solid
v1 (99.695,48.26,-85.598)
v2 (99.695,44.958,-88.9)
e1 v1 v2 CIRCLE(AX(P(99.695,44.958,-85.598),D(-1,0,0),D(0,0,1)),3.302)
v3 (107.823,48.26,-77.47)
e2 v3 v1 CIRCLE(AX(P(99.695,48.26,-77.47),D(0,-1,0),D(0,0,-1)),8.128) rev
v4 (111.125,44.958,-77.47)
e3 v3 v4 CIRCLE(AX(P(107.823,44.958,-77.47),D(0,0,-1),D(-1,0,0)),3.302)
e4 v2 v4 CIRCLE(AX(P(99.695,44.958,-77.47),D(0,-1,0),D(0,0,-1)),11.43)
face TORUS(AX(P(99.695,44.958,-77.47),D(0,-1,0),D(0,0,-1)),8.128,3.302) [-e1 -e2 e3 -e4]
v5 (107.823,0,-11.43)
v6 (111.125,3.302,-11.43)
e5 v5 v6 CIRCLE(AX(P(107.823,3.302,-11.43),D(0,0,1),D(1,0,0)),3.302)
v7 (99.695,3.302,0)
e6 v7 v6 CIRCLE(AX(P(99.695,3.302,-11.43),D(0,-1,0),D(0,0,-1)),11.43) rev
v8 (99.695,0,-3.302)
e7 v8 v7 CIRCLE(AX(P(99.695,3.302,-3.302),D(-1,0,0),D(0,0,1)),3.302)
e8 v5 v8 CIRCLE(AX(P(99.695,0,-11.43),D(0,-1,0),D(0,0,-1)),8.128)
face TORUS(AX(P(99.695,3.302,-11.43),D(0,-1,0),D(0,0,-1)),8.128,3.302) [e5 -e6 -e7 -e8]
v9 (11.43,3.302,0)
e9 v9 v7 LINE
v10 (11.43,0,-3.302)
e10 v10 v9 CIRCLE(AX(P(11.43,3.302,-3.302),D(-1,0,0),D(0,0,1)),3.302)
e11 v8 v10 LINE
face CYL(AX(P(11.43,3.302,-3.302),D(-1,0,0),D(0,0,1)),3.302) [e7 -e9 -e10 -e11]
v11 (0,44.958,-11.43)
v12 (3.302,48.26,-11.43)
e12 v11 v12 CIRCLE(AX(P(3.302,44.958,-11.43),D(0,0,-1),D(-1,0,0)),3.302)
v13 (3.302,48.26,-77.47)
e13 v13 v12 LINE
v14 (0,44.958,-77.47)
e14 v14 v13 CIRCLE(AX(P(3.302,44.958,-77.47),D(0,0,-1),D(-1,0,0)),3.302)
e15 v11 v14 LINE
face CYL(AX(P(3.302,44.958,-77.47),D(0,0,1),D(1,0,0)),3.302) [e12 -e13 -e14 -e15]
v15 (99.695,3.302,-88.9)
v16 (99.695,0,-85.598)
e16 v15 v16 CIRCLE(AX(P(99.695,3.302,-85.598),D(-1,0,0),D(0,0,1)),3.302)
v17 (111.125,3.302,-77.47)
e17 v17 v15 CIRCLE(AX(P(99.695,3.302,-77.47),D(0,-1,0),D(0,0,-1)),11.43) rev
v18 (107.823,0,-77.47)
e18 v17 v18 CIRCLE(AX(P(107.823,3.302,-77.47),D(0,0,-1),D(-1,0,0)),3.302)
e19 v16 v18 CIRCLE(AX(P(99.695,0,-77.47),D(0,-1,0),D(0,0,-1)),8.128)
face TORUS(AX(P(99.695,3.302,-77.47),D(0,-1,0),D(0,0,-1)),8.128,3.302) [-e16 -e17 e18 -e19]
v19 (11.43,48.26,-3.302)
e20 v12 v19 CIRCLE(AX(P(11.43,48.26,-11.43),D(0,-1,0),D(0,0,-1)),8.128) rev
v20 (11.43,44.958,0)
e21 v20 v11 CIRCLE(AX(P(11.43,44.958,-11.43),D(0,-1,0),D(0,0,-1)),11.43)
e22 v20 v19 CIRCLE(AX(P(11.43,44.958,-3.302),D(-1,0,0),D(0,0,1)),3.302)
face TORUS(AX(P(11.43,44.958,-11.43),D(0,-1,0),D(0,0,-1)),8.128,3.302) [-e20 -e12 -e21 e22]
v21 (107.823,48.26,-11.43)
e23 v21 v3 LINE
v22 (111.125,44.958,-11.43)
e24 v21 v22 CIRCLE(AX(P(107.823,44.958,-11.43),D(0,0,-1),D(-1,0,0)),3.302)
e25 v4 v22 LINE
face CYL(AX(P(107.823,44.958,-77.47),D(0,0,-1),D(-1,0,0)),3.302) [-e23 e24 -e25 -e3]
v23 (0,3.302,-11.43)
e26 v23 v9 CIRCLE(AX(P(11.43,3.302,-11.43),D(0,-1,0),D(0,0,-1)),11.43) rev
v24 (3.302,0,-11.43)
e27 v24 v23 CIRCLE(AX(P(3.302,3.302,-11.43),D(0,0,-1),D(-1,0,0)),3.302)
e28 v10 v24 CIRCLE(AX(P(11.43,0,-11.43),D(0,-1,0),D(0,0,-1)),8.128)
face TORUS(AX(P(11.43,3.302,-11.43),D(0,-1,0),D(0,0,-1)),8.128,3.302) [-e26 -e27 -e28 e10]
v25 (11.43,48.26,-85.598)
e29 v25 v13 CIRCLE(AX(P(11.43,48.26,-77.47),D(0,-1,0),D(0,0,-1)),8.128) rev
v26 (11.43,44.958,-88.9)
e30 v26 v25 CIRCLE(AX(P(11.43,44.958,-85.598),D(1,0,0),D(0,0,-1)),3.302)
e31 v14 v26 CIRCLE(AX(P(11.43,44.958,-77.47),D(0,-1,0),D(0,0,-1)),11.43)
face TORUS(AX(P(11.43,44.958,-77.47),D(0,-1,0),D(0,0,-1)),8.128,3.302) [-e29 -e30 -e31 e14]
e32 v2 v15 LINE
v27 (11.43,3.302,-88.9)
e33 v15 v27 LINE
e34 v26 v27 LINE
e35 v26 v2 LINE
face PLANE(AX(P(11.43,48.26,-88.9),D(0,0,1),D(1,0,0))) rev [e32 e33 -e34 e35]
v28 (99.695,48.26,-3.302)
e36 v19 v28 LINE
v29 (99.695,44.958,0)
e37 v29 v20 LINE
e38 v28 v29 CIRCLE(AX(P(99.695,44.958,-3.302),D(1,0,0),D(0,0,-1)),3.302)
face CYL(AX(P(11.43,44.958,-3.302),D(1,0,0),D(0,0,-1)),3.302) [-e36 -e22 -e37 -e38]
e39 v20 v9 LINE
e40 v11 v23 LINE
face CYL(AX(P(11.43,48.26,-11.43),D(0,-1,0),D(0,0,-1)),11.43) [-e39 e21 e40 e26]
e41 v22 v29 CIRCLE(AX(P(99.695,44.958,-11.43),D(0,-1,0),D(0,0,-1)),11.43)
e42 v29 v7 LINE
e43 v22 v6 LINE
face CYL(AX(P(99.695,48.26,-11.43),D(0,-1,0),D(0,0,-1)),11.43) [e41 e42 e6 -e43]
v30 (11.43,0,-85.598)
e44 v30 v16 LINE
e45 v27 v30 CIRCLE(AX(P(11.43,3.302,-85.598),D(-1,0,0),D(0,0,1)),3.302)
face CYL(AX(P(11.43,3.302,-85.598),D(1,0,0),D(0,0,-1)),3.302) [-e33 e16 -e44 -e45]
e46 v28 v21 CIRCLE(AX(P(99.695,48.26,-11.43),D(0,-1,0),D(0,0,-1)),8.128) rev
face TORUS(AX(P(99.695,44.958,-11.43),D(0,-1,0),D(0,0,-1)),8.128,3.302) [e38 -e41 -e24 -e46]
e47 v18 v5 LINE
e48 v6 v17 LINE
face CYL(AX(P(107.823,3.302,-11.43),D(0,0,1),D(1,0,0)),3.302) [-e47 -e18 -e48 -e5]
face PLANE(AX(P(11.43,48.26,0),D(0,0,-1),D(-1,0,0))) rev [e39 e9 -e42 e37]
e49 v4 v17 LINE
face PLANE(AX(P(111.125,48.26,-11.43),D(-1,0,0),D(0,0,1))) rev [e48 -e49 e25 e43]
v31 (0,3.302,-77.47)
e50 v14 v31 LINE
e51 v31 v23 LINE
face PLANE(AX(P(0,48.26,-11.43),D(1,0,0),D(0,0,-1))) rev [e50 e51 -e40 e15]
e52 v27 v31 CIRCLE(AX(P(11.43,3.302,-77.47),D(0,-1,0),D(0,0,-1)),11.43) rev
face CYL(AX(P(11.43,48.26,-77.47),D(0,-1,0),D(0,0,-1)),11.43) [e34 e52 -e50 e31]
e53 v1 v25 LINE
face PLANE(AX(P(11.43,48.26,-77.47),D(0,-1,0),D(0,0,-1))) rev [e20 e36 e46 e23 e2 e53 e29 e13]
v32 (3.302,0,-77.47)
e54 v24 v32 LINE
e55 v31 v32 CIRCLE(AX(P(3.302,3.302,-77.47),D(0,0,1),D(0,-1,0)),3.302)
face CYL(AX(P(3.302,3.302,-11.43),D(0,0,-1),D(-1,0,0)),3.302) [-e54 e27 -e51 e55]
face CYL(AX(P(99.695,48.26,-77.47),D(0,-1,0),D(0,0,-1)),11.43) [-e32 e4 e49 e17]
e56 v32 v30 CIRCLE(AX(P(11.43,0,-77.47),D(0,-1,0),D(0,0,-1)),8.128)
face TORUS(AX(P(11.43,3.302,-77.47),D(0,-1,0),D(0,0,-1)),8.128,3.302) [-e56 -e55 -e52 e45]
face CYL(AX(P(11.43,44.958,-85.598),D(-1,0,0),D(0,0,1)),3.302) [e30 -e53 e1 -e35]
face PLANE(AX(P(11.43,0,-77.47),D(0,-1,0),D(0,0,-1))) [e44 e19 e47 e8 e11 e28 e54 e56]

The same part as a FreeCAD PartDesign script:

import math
import FreeCAD as App
import Part
import Sketcher
Q = App.Units.Quantity


def edges_at(feature, points):
    """Names of the edges that pass closest to the given points."""
    edges = feature.Shape.Edges
    near = lambda p: min(range(len(edges)), key=lambda i: edges[i].distToShape(Part.Vertex(*p))[0])
    return sorted({f"Edge{near(p) + 1}" for p in points})

doc = App.newDocument("Part")
params = doc.addObject("Spreadsheet::Sheet", "Params")
for row, (alias, value) in enumerate([
    ("sketch1_radius", "0.45 in"),
    ("sketch1_height", "2.6 in"),
    ("sketch1_width", "3.475 in"),
    ("pad1_length", "1.9 in"),
    ("fillet_radius", "0.13 in"),
], start=1):
    params.set(f"A{row}", alias)
    params.set(f"B{row}", "=" + value)
    params.setAlias(f"B{row}", alias)

body = doc.addObject("PartDesign::Body", "Body")

# Sketch on XZ plane
sketch1 = body.newObject("Sketcher::SketchObject", "Sketch")
sketch1.AttachmentSupport = (doc.getObject("XZ_Plane"), [""])
sketch1.MapMode = "FlatFace"
sketch1.addGeometry([
    Part.LineSegment(App.Vector(11.43, 0, 0), App.Vector(99.695, 0, 0)),  # 0
    Part.ArcOfCircle(Part.Circle(App.Vector(99.695, -11.43, 0), App.Vector(0, 0, 1), 11.43), math.radians(0), math.radians(90)),  # 1
    Part.LineSegment(App.Vector(111.125, -11.43, 0), App.Vector(111.125, -77.47, 0)),  # 2
    Part.ArcOfCircle(Part.Circle(App.Vector(99.695, -77.47, 0), App.Vector(0, 0, 1), 11.43), math.radians(-90), math.radians(0)),  # 3
    Part.LineSegment(App.Vector(99.695, -88.9, 0), App.Vector(11.43, -88.9, 0)),  # 4
    Part.ArcOfCircle(Part.Circle(App.Vector(11.43, -77.47, 0), App.Vector(0, 0, 1), 11.43), math.radians(180), math.radians(270)),  # 5
    Part.LineSegment(App.Vector(0, -77.47, 0), App.Vector(0, -11.43, 0)),  # 6
    Part.ArcOfCircle(Part.Circle(App.Vector(11.43, -11.43, 0), App.Vector(0, 0, 1), 11.43), math.radians(90), math.radians(180)),  # 7
], False)
sketch1.addConstraint([
    Sketcher.Constraint("Tangent", 0, 2, 1, 2),
    Sketcher.Constraint("Tangent", 1, 1, 2, 1),
    Sketcher.Constraint("Tangent", 2, 2, 3, 2),
    Sketcher.Constraint("Tangent", 3, 1, 4, 1),
    Sketcher.Constraint("Tangent", 4, 2, 5, 2),
    Sketcher.Constraint("Tangent", 5, 1, 6, 1),
    Sketcher.Constraint("Tangent", 6, 2, 7, 2),
    Sketcher.Constraint("Tangent", 7, 1, 0, 1),
    Sketcher.Constraint("Horizontal", 0),
    Sketcher.Constraint("Vertical", 2),
    Sketcher.Constraint("Horizontal", 4),
    Sketcher.Constraint("Vertical", 6),
    Sketcher.Constraint("Equal", 1, 3),
    Sketcher.Constraint("Equal", 3, 5),
    Sketcher.Constraint("Equal", 5, 7),
    Sketcher.Constraint("PointOnObject", 0, 2, -1),
    Sketcher.Constraint("PointOnObject", 5, 1, -2),
    Sketcher.Constraint("Radius", 1, Q("0.45 in")),
    Sketcher.Constraint("DistanceY", 2, 2, 2, 1, Q("2.6 in")),
    Sketcher.Constraint("DistanceX", 0, 1, 0, 2, Q("3.475 in")),
])
sketch1.setExpression("Constraints[17]", "Params.sketch1_radius")
sketch1.setExpression("Constraints[18]", "Params.sketch1_height")
sketch1.setExpression("Constraints[19]", "Params.sketch1_width")
pad1 = body.newObject("PartDesign::Pad", "Pad")
pad1.Profile = sketch1
pad1.setExpression("Length", "Params.pad1_length")
pad1.Reversed = True
doc.recompute()

fillet = body.newObject("PartDesign::Fillet", "Fillet")
fillet.Base = (pad1, edges_at(pad1, [
    (3.348, 48.26, -3.348),
    (0, 0, -44.45),
    (3.348, 0, -85.552),
    (55.562, 48.26, 0),
    (107.777, 48.26, -3.348),
    (111.125, 48.26, -44.45),
    (107.777, 48.26, -85.552),
    (55.562, 48.26, -88.9),
    (3.348, 48.26, -85.552),
    (0, 48.26, -44.45),
    (55.562, 0, -88.9),
    (107.777, 0, -85.552),
    (111.125, 0, -44.45),
    (107.777, 0, -3.348),
    (55.562, 0, 0),
    (3.348, 0, -3.348),
]))
fillet.setExpression("Radius", "Params.fillet_radius")

doc.recompute()
